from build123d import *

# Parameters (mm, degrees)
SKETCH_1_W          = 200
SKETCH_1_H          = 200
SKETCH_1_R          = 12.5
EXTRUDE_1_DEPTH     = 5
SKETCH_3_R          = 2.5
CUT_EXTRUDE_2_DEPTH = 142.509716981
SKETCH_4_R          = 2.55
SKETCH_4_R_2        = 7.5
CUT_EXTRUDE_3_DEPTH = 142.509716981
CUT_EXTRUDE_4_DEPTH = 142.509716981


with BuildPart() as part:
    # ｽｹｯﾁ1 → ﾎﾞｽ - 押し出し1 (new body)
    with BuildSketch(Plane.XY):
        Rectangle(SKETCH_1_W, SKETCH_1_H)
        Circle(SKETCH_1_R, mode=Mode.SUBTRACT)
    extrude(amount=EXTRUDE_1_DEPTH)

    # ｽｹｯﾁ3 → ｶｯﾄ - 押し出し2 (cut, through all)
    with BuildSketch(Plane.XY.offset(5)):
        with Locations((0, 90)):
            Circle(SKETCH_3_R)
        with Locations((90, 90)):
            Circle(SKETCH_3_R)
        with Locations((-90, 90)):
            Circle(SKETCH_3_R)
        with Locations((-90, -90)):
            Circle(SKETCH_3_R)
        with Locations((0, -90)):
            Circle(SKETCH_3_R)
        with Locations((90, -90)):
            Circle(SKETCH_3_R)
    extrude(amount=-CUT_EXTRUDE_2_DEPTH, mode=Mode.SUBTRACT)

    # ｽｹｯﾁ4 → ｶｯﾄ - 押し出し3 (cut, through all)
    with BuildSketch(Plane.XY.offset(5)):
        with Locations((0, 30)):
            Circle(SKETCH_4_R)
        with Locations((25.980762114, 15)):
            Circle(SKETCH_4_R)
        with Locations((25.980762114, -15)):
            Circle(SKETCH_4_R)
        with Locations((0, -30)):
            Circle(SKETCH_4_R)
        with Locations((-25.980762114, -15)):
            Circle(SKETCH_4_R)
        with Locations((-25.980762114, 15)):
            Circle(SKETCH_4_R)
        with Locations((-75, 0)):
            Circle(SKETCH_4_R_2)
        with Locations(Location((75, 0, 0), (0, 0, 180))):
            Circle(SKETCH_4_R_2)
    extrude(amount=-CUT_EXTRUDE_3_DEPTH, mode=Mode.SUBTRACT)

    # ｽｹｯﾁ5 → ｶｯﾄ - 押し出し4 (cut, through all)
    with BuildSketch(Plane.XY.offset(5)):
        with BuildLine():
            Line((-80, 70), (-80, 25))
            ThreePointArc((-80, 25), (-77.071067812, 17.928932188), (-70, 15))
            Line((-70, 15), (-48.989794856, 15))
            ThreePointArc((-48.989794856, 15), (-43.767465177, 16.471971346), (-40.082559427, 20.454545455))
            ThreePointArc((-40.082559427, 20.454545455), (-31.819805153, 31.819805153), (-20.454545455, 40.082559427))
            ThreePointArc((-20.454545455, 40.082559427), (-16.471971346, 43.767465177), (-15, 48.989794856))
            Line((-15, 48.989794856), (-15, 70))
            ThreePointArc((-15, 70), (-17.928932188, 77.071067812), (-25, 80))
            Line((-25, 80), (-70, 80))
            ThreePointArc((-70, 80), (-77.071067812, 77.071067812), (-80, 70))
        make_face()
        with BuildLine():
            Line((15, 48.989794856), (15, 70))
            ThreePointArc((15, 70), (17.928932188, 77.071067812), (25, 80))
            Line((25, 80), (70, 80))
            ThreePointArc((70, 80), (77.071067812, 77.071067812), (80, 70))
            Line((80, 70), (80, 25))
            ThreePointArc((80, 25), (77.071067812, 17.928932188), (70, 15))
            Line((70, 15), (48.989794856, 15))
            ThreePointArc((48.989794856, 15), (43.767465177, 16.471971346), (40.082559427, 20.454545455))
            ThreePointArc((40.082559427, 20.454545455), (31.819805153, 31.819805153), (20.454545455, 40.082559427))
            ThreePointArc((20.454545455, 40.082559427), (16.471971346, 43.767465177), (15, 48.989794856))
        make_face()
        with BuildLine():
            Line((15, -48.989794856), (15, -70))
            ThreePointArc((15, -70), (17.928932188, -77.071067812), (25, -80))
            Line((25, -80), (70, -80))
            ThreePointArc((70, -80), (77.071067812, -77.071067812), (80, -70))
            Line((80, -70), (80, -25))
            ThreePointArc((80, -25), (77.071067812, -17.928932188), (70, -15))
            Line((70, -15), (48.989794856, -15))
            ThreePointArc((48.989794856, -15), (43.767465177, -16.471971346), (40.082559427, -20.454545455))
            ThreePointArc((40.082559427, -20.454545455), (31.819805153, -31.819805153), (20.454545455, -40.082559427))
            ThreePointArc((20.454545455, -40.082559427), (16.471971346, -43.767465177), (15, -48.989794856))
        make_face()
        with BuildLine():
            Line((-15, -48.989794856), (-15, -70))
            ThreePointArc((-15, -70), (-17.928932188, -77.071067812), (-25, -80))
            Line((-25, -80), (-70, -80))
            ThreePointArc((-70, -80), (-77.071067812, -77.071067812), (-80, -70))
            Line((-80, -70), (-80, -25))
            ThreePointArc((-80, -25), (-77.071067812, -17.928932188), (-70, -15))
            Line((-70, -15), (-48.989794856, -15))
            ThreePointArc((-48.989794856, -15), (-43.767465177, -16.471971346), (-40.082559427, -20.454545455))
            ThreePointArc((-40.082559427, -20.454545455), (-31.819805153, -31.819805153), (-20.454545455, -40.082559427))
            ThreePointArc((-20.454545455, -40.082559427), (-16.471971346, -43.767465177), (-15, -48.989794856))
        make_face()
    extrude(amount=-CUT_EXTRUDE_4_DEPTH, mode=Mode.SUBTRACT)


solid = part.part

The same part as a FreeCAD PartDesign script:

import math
import FreeCAD as App
import Part
import Sketcher

V = App.Vector

doc = App.newDocument("Part")
body = doc.addObject("PartDesign::Body", "Body")

sketch1 = body.newObject("Sketcher::SketchObject", "Sketch")
sketch1.AttachmentSupport = (doc.getObject("XY_Plane"), [""])
sketch1.MapMode = "FlatFace"
sketch1.addGeometry([
    Part.LineSegment(V(-100, 100, 0), V(-100, -100, 0)),
    Part.LineSegment(V(-100, -100, 0), V(100, -100, 0)),
    Part.LineSegment(V(100, -100, 0), V(100, 100, 0)),
    Part.LineSegment(V(100, 100, 0), V(-100, 100, 0)),
    Part.Circle(V(0, 0, 0), V(0, 0, 1), 12),
], False)
sketch1.addConstraint([
    Sketcher.Constraint("Coincident", 0, 2, 1, 1),
    Sketcher.Constraint("Coincident", 1, 2, 2, 1),
    Sketcher.Constraint("Coincident", 2, 2, 3, 1),
    Sketcher.Constraint("Coincident", 3, 2, 0, 1),
    Sketcher.Constraint("Vertical", 0),
    Sketcher.Constraint("Horizontal", 1),
    Sketcher.Constraint("Vertical", 2),
    Sketcher.Constraint("Horizontal", 3),
    Sketcher.Constraint("Coincident", 4, 3, -1, 1),
    Sketcher.Constraint("Symmetric", 0, 2, 2, 2, -1, 1),
    Sketcher.Constraint("Equal", 3, 0),
    Sketcher.Constraint("Diameter", 4, 25.0),
    Sketcher.Constraint("DistanceX", 1, 1, 1, 2, 200.0),
])
pad1 = body.newObject("PartDesign::Pad", "Pad")
pad1.Profile = sketch1
pad1.Length = 5

sketch2 = body.newObject("Sketcher::SketchObject", "Sketch001")
sketch2.AttachmentSupport = (doc.getObject("XY_Plane"), [""])
sketch2.MapMode = "FlatFace"
sketch2.AttachmentOffset = App.Placement(V(0, 0, 5), App.Rotation())
sketch2.addGeometry([
    Part.Circle(V(0, 90, 0), V(0, 0, 1), 2.5),
    Part.Circle(V(90, 90, 0), V(0, 0, 1), 2.5),
    Part.Circle(V(-90, 90, 0), V(0, 0, 1), 2.5),
    Part.Circle(V(-90, -90, 0), V(0, 0, 1), 2.5),
    Part.Circle(V(0, -90, 0), V(0, 0, 1), 2.5),
    Part.Circle(V(90, -90, 0), V(0, 0, 1), 2.5),
], False)
sketch2.addConstraint([
    Sketcher.Constraint("Equal", 0, 1),
    Sketcher.Constraint("Equal", 1, 2),
    Sketcher.Constraint("Equal", 2, 3),
    Sketcher.Constraint("Equal", 3, 4),
    Sketcher.Constraint("Equal", 4, 5),
    Sketcher.Constraint("Symmetric", 1, 3, 3, 3, -1, 1),
    Sketcher.Constraint("Symmetric", 0, 3, 4, 3, -1, 1),
    Sketcher.Constraint("Symmetric", 2, 3, 5, 3, -1, 1),
    Sketcher.Constraint("Symmetric", 1, 3, 2, 3, -2),
    Sketcher.Constraint("PointOnObject", 0, 3, -2),
    Sketcher.Constraint("Horizontal", 0, 3, 1, 3),
    Sketcher.Constraint("Diameter", 0, 5.0),
    Sketcher.Constraint("DistanceY", -1, 1, 0, 3, 90.0),
    Sketcher.Constraint("DistanceX", -1, 1, 1, 3, 90.0),
])
pocket1 = body.newObject("PartDesign::Pocket", "Pocket")
pocket1.Profile = sketch2
pocket1.Type = "ThroughAll"

sketch3 = body.newObject("Sketcher::SketchObject", "Sketch002")
sketch3.AttachmentSupport = (doc.getObject("XY_Plane"), [""])
sketch3.MapMode = "FlatFace"
sketch3.AttachmentOffset = App.Placement(V(0, 0, 5), App.Rotation())
sketch3.addGeometry([
    Part.Circle(V(0, 30, 0), V(0, 0, 1), 2.5),
    Part.Circle(V(26, 15, 0), V(0, 0, 1), 2.5),
    Part.Circle(V(26, -15, 0), V(0, 0, 1), 2.5),
    Part.Circle(V(0, -30, 0), V(0, 0, 1), 2.5),
    Part.Circle(V(-26, -15, 0), V(0, 0, 1), 2.5),
    Part.Circle(V(-26, 15, 0), V(0, 0, 1), 2.5),
    Part.Circle(V(-75, 0, 0), V(0, 0, 1), 7.5),
    Part.Circle(V(75, 0, 0), V(0, 0, 1), 7.5),
], False)
sketch3.addConstraint([
    Sketcher.Constraint("Equal", 0, 1),
    Sketcher.Constraint("Equal", 1, 2),
    Sketcher.Constraint("Equal", 2, 3),
    Sketcher.Constraint("Equal", 3, 4),
    Sketcher.Constraint("Equal", 4, 5),
    Sketcher.Constraint("Equal", 6, 7),
    Sketcher.Constraint("Symmetric", 0, 3, 3, 3, -1, 1),
    Sketcher.Constraint("Symmetric", 1, 3, 4, 3, -1, 1),
    Sketcher.Constraint("Symmetric", 2, 3, 5, 3, -1, 1),
    Sketcher.Constraint("Symmetric", 6, 3, 7, 3, -1, 1),
    Sketcher.Constraint("Symmetric", 2, 3, 4, 3, -2),
    Sketcher.Constraint("PointOnObject", 0, 3, -2),
    Sketcher.Constraint("PointOnObject", 6, 3, -1),
    Sketcher.Constraint("Diameter", 6, 15.0),
    Sketcher.Constraint("Diameter", 0, 5.1),
    Sketcher.Constraint("DistanceY", -1, 1, 0, 3, 30.0),
    Sketcher.Constraint("DistanceY", -1, 1, 1, 3, 15.0),
    Sketcher.Constraint("DistanceX", 6, 3, -1, 1, 75.0),
    Sketcher.Constraint("DistanceX", -1, 1, 1, 3, 25.980762),
])
pocket2 = body.newObject("PartDesign::Pocket", "Pocket001")
pocket2.Profile = sketch3
pocket2.Type = "ThroughAll"

sketch4 = body.newObject("Sketcher::SketchObject", "Sketch003")
sketch4.AttachmentSupport = (doc.getObject("XY_Plane"), [""])
sketch4.MapMode = "FlatFace"
sketch4.AttachmentOffset = App.Placement(V(0, 0, 5), App.Rotation())
sketch4.addGeometry([
    Part.LineSegment(V(-80, 70, 0), V(-80, 25, 0)),
    Part.ArcOfCircle(Part.Circle(V(-70, 25, 0), V(0, 0, 1), 10), math.radians(180), math.radians(270)),
    Part.LineSegment(V(-70, 15, 0), V(-49, 15, 0)),
    Part.ArcOfCircle(Part.Circle(V(-49, 25, 0), V(0, 0, 1), 10), math.radians(-90), math.radians(-27)),
    Part.ArcOfCircle(Part.Circle(V(0, 0, 0), V(0, 0, 1), 45), math.radians(117), math.radians(153)),
    Part.ArcOfCircle(Part.Circle(V(-25, 49, 0), V(0, 0, 1), 10), math.radians(-63), math.radians(0)),
    Part.LineSegment(V(-15, 49, 0), V(-15, 70, 0)),
    Part.ArcOfCircle(Part.Circle(V(-25, 70, 0), V(0, 0, 1), 10), math.radians(0), math.radians(90)),
    Part.LineSegment(V(-25, 80, 0), V(-70, 80, 0)),
    Part.ArcOfCircle(Part.Circle(V(-70, 70, 0), V(0, 0, 1), 10), math.radians(90), math.radians(180)),
    Part.LineSegment(V(15, 70, 0), V(15, 49, 0)),
    Part.ArcOfCircle(Part.Circle(V(25, 49, 0), V(0, 0, 1), 10), math.radians(180), math.radians(243)),
    Part.ArcOfCircle(Part.Circle(V(0, 0, 0), V(0, 0, 1), 45), math.radians(27), math.radians(63)),
    Part.ArcOfCircle(Part.Circle(V(49, 25, 0), V(0, 0, 1), 10), math.radians(-153), math.radians(-90)),
    Part.LineSegment(V(49, 15, 0), V(70, 15, 0)),
    Part.ArcOfCircle(Part.Circle(V(70, 25, 0), V(0, 0, 1), 10), math.radians(-90), math.radians(0)),
    Part.LineSegment(V(80, 25, 0), V(80, 70, 0)),
    Part.ArcOfCircle(Part.Circle(V(70, 70, 0), V(0, 0, 1), 10), math.radians(0), math.radians(90)),
    Part.LineSegment(V(70, 80, 0), V(25, 80, 0)),
    Part.ArcOfCircle(Part.Circle(V(25, 70, 0), V(0, 0, 1), 10), math.radians(90), math.radians(180)),
    Part.LineSegment(V(15, -49, 0), V(15, -70, 0)),
    Part.ArcOfCircle(Part.Circle(V(25, -70, 0), V(0, 0, 1), 10), math.radians(180), math.radians(270)),
    Part.LineSegment(V(25, -80, 0), V(70, -80, 0)),
    Part.ArcOfCircle(Part.Circle(V(70, -70, 0), V(0, 0, 1), 10), math.radians(-90), math.radians(0)),
    Part.LineSegment(V(80, -70, 0), V(80, -25, 0)),
    Part.ArcOfCircle(Part.Circle(V(70, -25, 0), V(0, 0, 1), 10), math.radians(0), math.radians(90)),
    Part.LineSegment(V(70, -15, 0), V(49, -15, 0)),
    Part.ArcOfCircle(Part.Circle(V(49, -25, 0), V(0, 0, 1), 10), math.radians(90), math.radians(153)),
    Part.ArcOfCircle(Part.Circle(V(0, 0, 0), V(0, 0, 1), 45), math.radians(-63), math.radians(-27)),
    Part.ArcOfCircle(Part.Circle(V(25, -49, 0), V(0, 0, 1), 10), math.radians(117), math.radians(180)),
    Part.LineSegment(V(-15, -70, 0), V(-15, -49, 0)),
    Part.ArcOfCircle(Part.Circle(V(-25, -49, 0), V(0, 0, 1), 10), math.radians(0), math.radians(63)),
    Part.ArcOfCircle(Part.Circle(V(0, 0, 0), V(0, 0, 1), 45), math.radians(-153), math.radians(-117)),
    Part.ArcOfCircle(Part.Circle(V(-49, -25, 0), V(0, 0, 1), 10), math.radians(27), math.radians(90)),
    Part.LineSegment(V(-49, -15, 0), V(-70, -15, 0)),
    Part.ArcOfCircle(Part.Circle(V(-70, -25, 0), V(0, 0, 1), 10), math.radians(90), math.radians(180)),
    Part.LineSegment(V(-80, -25, 0), V(-80, -70, 0)),
    Part.ArcOfCircle(Part.Circle(V(-70, -70, 0), V(0, 0, 1), 10), math.radians(180), math.radians(270)),
    Part.LineSegment(V(-70, -80, 0), V(-25, -80, 0)),
    Part.ArcOfCircle(Part.Circle(V(-25, -70, 0), V(0, 0, 1), 10), math.radians(-90), math.radians(0)),
], False)
sketch4.addConstraint([
    Sketcher.Constraint("Tangent", 0, 2, 1, 1),
    Sketcher.Constraint("Tangent", 1, 2, 2, 1),
    Sketcher.Constraint("Tangent", 2, 2, 3, 1),
    Sketcher.Constraint("Tangent", 3, 2, 4, 2),
    Sketcher.Constraint("Tangent", 4, 1, 5, 1),
    Sketcher.Constraint("Tangent", 5, 2, 6, 1),
    Sketcher.Constraint("Tangent", 6, 2, 7, 1),
    Sketcher.Constraint("Tangent", 7, 2, 8, 1),
    Sketcher.Constraint("Tangent", 8, 2, 9, 1),
    Sketcher.Constraint("Tangent", 9, 2, 0, 1),
    Sketcher.Constraint("Tangent", 10, 2, 11, 1),
    Sketcher.Constraint("Tangent", 11, 2, 12, 2),
    Sketcher.Constraint("Tangent", 12, 1, 13, 1),
    Sketcher.Constraint("Tangent", 13, 2, 14, 1),
    Sketcher.Constraint("Tangent", 14, 2, 15, 1),
    Sketcher.Constraint("Tangent", 15, 2, 16, 1),
    Sketcher.Constraint("Tangent", 16, 2, 17, 1),
    Sketcher.Constraint("Tangent", 17, 2, 18, 1),
    Sketcher.Constraint("Tangent", 18, 2, 19, 1),
    Sketcher.Constraint("Tangent", 19, 2, 10, 1),
    Sketcher.Constraint("Tangent", 20, 2, 21, 1),
    Sketcher.Constraint("Tangent", 21, 2, 22, 1),
    Sketcher.Constraint("Tangent", 22, 2, 23, 1),
    Sketcher.Constraint("Tangent", 23, 2, 24, 1),
    Sketcher.Constraint("Tangent", 24, 2, 25, 1),
    Sketcher.Constraint("Tangent", 25, 2, 26, 1),
    Sketcher.Constraint("Tangent", 26, 2, 27, 1),
    Sketcher.Constraint("Tangent", 27, 2, 28, 2),
    Sketcher.Constraint("Tangent", 28, 1, 29, 1),
    Sketcher.Constraint("Tangent", 29, 2, 20, 1),
    Sketcher.Constraint("Tangent", 30, 2, 31, 1),
    Sketcher.Constraint("Tangent", 31, 2, 32, 2),
    Sketcher.Constraint("Tangent", 32, 1, 33, 1),
    Sketcher.Constraint("Tangent", 33, 2, 34, 1),
    Sketcher.Constraint("Tangent", 34, 2, 35, 1),
    Sketcher.Constraint("Tangent", 35, 2, 36, 1),
    Sketcher.Constraint("Tangent", 36, 2, 37, 1),
    Sketcher.Constraint("Tangent", 37, 2, 38, 1),
    Sketcher.Constraint("Tangent", 38, 2, 39, 1),
    Sketcher.Constraint("Tangent", 39, 2, 30, 1),
    Sketcher.Constraint("Vertical", 0),
    Sketcher.Constraint("Horizontal", 2),
    Sketcher.Constraint("Vertical", 6),
    Sketcher.Constraint("Horizontal", 8),
    Sketcher.Constraint("Vertical", 10),
    Sketcher.Constraint("Horizontal", 14),
    Sketcher.Constraint("Vertical", 16),
    Sketcher.Constraint("Horizontal", 18),
    Sketcher.Constraint("Vertical", 20),
    Sketcher.Constraint("Horizontal", 22),
    Sketcher.Constraint("Vertical", 24),
    Sketcher.Constraint("Horizontal", 26),
    Sketcher.Constraint("Vertical", 30),
    Sketcher.Constraint("Horizontal", 34),
    Sketcher.Constraint("Vertical", 36),
    Sketcher.Constraint("Horizontal", 38),
    Sketcher.Constraint("Coincident", 4, 3, -1, 1),
    Sketcher.Constraint("Coincident", 12, 3, -1, 1),
    Sketcher.Constraint("Coincident", 28, 3, -1, 1),
    Sketcher.Constraint("Coincident", 32, 3, -1, 1),
    Sketcher.Constraint("Equal", 1, 3),
    Sketcher.Constraint("Equal", 3, 5),
    Sketcher.Constraint("Equal", 5, 7),
    Sketcher.Constraint("Equal", 7, 9),
    Sketcher.Constraint("Equal", 9, 11),
    Sketcher.Constraint("Equal", 4, 12),
    Sketcher.Constraint("Equal", 11, 13),
    Sketcher.Constraint("Equal", 13, 15),
    Sketcher.Constraint("Equal", 15, 17),
    Sketcher.Constraint("Equal", 17, 19),
    Sketcher.Constraint("Equal", 19, 21),
    Sketcher.Constraint("Equal", 21, 23),
    Sketcher.Constraint("Equal", 23, 25),
    Sketcher.Constraint("Equal", 25, 27),
    Sketcher.Constraint("Equal", 12, 28),
    Sketcher.Constraint("Equal", 27, 29),
    Sketcher.Constraint("Equal", 29, 31),
    Sketcher.Constraint("Equal", 28, 32),
    Sketcher.Constraint("Equal", 31, 33),
    Sketcher.Constraint("Equal", 33, 35),
    Sketcher.Constraint("Equal", 35, 37),
    Sketcher.Constraint("Equal", 37, 39),
    Sketcher.Constraint("Symmetric", 7, 3, 21, 3, -1, 1),
    Sketcher.Constraint("Symmetric", 1, 3, 25, 3, -1, 1),
    Sketcher.Constraint("Symmetric", 15, 3, 35, 3, -1, 1),
    Sketcher.Constraint("Symmetric", 19, 3, 39, 3, -1, 1),
    Sketcher.Constraint("Symmetric", 1, 3, 15, 3, -2),
    Sketcher.Constraint("Symmetric", 7, 3, 19, 3, -2),
    Sketcher.Constraint("Equal", 38, 0),
    Sketcher.Constraint("Equal", 34, 6),
    Sketcher.Constraint("Radius", 1, 10.0),
    Sketcher.Constraint("Radius", 4, 45.0),
    Sketcher.Constraint("DistanceX", 8, 2, 8, 1, 45.0),
    Sketcher.Constraint("DistanceX", 1, 3, -1, 1, 70.0),
])
pocket3 = body.newObject("PartDesign::Pocket", "Pocket002")
pocket3.Profile = sketch4
pocket3.Type = "ThroughAll"

doc.recompute()
